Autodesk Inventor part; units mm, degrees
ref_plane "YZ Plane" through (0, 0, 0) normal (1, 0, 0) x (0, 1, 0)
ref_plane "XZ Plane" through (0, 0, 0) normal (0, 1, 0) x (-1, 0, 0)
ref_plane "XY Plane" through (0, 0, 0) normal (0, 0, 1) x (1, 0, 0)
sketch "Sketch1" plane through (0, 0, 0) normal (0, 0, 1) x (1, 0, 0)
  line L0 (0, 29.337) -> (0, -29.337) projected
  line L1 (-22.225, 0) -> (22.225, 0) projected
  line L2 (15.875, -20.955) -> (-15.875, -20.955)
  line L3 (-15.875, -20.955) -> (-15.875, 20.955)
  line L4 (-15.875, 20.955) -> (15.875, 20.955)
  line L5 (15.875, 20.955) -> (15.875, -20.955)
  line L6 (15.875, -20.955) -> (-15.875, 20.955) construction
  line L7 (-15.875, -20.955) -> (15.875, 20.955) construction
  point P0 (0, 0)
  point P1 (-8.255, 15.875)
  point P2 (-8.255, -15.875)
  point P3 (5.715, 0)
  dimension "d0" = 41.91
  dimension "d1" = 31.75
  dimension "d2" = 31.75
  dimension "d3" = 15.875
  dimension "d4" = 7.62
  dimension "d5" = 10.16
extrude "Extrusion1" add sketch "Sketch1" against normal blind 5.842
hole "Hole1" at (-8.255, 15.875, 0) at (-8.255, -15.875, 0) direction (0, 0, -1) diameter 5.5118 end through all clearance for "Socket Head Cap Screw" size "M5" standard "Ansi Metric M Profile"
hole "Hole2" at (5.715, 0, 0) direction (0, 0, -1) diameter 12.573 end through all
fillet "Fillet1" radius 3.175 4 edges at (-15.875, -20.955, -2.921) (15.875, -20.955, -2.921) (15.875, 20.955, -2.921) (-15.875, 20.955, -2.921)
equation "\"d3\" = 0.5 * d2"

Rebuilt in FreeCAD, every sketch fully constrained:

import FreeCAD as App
import Part
import Sketcher
Q = App.Units.Quantity


def edges_at(feature, points):
    """Names of the edges that pass closest to the given points."""
    edges = feature.Shape.Edges
    near = lambda p: min(range(len(edges)), key=lambda i: edges[i].distToShape(Part.Vertex(*p))[0])
    return sorted({f"Edge{near(p) + 1}" for p in points})


def add_polygon(sketch, points):
    """Adds a closed chain of lines whose ends are joined by coincident constraints."""
    first, n = sketch.GeometryCount, len(points)
    for a, b in zip(points, points[1:] + points[:1]):
        sketch.addGeometry(Part.LineSegment(App.Vector(*a, 0), App.Vector(*b, 0)), False)
    for i in range(n):
        sketch.addConstraint(Sketcher.Constraint("Coincident", first + i, 2, first + (i + 1) % n, 1))

doc = App.newDocument("Part")
params = doc.addObject("Spreadsheet::Sheet", "Params")
for row, (alias, value) in enumerate([
    ("sketch1_width", "1.25 in"),
    ("sketch1_height", "1.65 in"),
    ("pad1_length", "0.23 in"),
    ("sketch2_diameter", "0.217 in"),
    ("hole_diameter", "0.217 in"),
    ("sketch3_diameter", "0.495 in"),
    ("hole2_diameter", "0.495 in"),
    ("fillet_radius", "0.125 in"),
], start=1):
    params.set(f"A{row}", alias)
    params.set(f"B{row}", "=" + value)
    params.setAlias(f"B{row}", alias)

body = doc.addObject("PartDesign::Body", "Body")

# Sketch on XY plane
sketch1 = doc.addObject("Sketcher::SketchObject", "Sketch")
body.addObject(sketch1)
sketch1.AttachmentSupport = (doc.XY_Plane, [""])
sketch1.MapMode = "FlatFace"
add_polygon(sketch1, [(16, 21), (-16, 21), (-16, -21), (16, -21)])  # lines 0-3
sketch1.addConstraint([
    Sketcher.Constraint("Horizontal", 0),
    Sketcher.Constraint("Vertical", 1),
    Sketcher.Constraint("Horizontal", 2),
    Sketcher.Constraint("Vertical", 3),
    Sketcher.Constraint("Symmetric", 0, 2, 2, 2, -1, 1),
    Sketcher.Constraint("DistanceX", 0, 2, 0, 1, Q("1.25 in")),
    Sketcher.Constraint("DistanceY", 1, 2, 1, 1, Q("1.65 in")),
])
sketch1.setExpression("Constraints[9]", "Params.sketch1_width")
sketch1.setExpression("Constraints[10]", "Params.sketch1_height")
pad1 = doc.addObject("PartDesign::Pad", "Pad")
body.addObject(pad1)
pad1.Profile = sketch1
pad1.setExpression("Length", "Params.pad1_length")
pad1.Reversed = True

# Sketch on XY plane
sketch2 = doc.addObject("Sketcher::SketchObject", "Sketch001")
body.addObject(sketch2)
sketch2.AttachmentSupport = (doc.XY_Plane, [""])
sketch2.MapMode = "FlatFace"
sketch2.addGeometry([
    Part.Circle(App.Vector(-8.3, 15.9, 0), App.Vector(0, 0, 1), 2.8),
    Part.Circle(App.Vector(-8.3, -15.9, 0), App.Vector(0, 0, 1), 2.8),
], False)
sketch2.addConstraint([
    Sketcher.Constraint("Equal", 0, 1),
    Sketcher.Constraint("Symmetric", 0, 3, 1, 3, -1),
    Sketcher.Constraint("Diameter", 0, Q("0.217 in")),
    Sketcher.Constraint("DistanceY", 1, 3, 0, 3, Q("1.25 in")),
    Sketcher.Constraint("DistanceX", 0, 3, -1, 1, Q("0.325 in")),
])
sketch2.setExpression("Constraints[2]", "Params.sketch2_diameter")
doc.recompute()
hole = doc.addObject("PartDesign::Hole", "Hole")
body.addObject(hole)
hole.Profile = sketch2
hole.ThreadType = "None"
hole.setExpression("Diameter", "Params.hole_diameter")
hole.DepthType = "ThroughAll"

# Sketch on XY plane
sketch3 = doc.addObject("Sketcher::SketchObject", "Sketch002")
body.addObject(sketch3)
sketch3.AttachmentSupport = (doc.XY_Plane, [""])
sketch3.MapMode = "FlatFace"
sketch3.addGeometry(Part.Circle(App.Vector(6, 0, 0), App.Vector(0, 0, 1), 6), False)
sketch3.addConstraint([
    Sketcher.Constraint("PointOnObject", 0, 3, -1),
    Sketcher.Constraint("Diameter", 0, Q("0.495 in")),
    Sketcher.Constraint("DistanceX", -1, 1, 0, 3, Q("0.225 in")),
])
sketch3.setExpression("Constraints[1]", "Params.sketch3_diameter")
doc.recompute()
hole2 = doc.addObject("PartDesign::Hole", "Hole001")
body.addObject(hole2)
hole2.Profile = sketch3
hole2.ThreadType = "None"
hole2.setExpression("Diameter", "Params.hole2_diameter")
hole2.DepthType = "ThroughAll"
doc.recompute()

fillet = doc.addObject("PartDesign::Fillet", "Fillet")
body.addObject(fillet)
fillet.Base = (hole2, edges_at(hole2, [
    (-15.875, -20.955, -2.921),
    (15.875, -20.955, -2.921),
    (15.875, 20.955, -2.921),
    (-15.875, 20.955, -2.921),
]))
fillet.setExpression("Radius", "Params.fillet_radius")

doc.recompute()
